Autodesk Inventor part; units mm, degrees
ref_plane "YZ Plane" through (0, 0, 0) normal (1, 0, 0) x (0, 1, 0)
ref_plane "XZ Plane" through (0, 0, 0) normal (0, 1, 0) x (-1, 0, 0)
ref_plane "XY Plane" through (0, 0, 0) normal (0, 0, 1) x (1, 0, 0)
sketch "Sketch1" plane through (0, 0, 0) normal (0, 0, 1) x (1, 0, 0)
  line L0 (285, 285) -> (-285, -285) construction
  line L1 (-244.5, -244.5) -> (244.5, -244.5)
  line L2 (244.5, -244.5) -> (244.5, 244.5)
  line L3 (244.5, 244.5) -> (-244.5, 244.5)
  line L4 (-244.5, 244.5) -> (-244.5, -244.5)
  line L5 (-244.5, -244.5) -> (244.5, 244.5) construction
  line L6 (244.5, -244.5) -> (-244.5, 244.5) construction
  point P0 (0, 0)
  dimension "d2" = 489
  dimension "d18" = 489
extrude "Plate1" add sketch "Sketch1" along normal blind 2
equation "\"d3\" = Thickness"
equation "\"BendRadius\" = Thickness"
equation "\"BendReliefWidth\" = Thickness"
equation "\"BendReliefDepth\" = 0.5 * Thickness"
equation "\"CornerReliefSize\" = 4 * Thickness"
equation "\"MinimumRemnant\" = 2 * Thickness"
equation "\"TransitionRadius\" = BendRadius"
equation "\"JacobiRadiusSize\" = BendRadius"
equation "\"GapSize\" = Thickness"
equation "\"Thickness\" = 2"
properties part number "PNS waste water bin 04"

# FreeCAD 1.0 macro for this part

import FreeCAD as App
import Part
import Sketcher
from FreeCAD import Vector

doc = App.newDocument("Part")
body = doc.addObject("PartDesign::Body", "Body")

sketch1 = body.newObject("Sketcher::SketchObject", "Sketch")
sketch1.AttachmentSupport = (doc.getObject("XY_Plane"), [""])
sketch1.MapMode = "FlatFace"
sketch1.addGeometry([
    Part.LineSegment(Vector(-244, 244, 0), Vector(-244, -244, 0)),
    Part.LineSegment(Vector(-244, -244, 0), Vector(244, -244, 0)),
    Part.LineSegment(Vector(244, -244, 0), Vector(244, 244, 0)),
    Part.LineSegment(Vector(244, 244, 0), Vector(-244, 244, 0)),
], False)
sketch1.addConstraint([
    Sketcher.Constraint("Coincident", 0, 2, 1, 1),
    Sketcher.Constraint("Coincident", 1, 2, 2, 1),
    Sketcher.Constraint("Coincident", 2, 2, 3, 1),
    Sketcher.Constraint("Coincident", 3, 2, 0, 1),
    Sketcher.Constraint("Vertical", 0),
    Sketcher.Constraint("Horizontal", 1),
    Sketcher.Constraint("Vertical", 2),
    Sketcher.Constraint("Horizontal", 3),
    Sketcher.Constraint("Symmetric", 0, 2, 2, 2, -1, 1),
    Sketcher.Constraint("Equal", 3, 0),
    Sketcher.Constraint("DistanceX", 1, 1, 1, 2, 489.0),
])
pad1 = body.newObject("PartDesign::Pad", "Pad")
pad1.Profile = sketch1
pad1.Length = 2

doc.recompute()
